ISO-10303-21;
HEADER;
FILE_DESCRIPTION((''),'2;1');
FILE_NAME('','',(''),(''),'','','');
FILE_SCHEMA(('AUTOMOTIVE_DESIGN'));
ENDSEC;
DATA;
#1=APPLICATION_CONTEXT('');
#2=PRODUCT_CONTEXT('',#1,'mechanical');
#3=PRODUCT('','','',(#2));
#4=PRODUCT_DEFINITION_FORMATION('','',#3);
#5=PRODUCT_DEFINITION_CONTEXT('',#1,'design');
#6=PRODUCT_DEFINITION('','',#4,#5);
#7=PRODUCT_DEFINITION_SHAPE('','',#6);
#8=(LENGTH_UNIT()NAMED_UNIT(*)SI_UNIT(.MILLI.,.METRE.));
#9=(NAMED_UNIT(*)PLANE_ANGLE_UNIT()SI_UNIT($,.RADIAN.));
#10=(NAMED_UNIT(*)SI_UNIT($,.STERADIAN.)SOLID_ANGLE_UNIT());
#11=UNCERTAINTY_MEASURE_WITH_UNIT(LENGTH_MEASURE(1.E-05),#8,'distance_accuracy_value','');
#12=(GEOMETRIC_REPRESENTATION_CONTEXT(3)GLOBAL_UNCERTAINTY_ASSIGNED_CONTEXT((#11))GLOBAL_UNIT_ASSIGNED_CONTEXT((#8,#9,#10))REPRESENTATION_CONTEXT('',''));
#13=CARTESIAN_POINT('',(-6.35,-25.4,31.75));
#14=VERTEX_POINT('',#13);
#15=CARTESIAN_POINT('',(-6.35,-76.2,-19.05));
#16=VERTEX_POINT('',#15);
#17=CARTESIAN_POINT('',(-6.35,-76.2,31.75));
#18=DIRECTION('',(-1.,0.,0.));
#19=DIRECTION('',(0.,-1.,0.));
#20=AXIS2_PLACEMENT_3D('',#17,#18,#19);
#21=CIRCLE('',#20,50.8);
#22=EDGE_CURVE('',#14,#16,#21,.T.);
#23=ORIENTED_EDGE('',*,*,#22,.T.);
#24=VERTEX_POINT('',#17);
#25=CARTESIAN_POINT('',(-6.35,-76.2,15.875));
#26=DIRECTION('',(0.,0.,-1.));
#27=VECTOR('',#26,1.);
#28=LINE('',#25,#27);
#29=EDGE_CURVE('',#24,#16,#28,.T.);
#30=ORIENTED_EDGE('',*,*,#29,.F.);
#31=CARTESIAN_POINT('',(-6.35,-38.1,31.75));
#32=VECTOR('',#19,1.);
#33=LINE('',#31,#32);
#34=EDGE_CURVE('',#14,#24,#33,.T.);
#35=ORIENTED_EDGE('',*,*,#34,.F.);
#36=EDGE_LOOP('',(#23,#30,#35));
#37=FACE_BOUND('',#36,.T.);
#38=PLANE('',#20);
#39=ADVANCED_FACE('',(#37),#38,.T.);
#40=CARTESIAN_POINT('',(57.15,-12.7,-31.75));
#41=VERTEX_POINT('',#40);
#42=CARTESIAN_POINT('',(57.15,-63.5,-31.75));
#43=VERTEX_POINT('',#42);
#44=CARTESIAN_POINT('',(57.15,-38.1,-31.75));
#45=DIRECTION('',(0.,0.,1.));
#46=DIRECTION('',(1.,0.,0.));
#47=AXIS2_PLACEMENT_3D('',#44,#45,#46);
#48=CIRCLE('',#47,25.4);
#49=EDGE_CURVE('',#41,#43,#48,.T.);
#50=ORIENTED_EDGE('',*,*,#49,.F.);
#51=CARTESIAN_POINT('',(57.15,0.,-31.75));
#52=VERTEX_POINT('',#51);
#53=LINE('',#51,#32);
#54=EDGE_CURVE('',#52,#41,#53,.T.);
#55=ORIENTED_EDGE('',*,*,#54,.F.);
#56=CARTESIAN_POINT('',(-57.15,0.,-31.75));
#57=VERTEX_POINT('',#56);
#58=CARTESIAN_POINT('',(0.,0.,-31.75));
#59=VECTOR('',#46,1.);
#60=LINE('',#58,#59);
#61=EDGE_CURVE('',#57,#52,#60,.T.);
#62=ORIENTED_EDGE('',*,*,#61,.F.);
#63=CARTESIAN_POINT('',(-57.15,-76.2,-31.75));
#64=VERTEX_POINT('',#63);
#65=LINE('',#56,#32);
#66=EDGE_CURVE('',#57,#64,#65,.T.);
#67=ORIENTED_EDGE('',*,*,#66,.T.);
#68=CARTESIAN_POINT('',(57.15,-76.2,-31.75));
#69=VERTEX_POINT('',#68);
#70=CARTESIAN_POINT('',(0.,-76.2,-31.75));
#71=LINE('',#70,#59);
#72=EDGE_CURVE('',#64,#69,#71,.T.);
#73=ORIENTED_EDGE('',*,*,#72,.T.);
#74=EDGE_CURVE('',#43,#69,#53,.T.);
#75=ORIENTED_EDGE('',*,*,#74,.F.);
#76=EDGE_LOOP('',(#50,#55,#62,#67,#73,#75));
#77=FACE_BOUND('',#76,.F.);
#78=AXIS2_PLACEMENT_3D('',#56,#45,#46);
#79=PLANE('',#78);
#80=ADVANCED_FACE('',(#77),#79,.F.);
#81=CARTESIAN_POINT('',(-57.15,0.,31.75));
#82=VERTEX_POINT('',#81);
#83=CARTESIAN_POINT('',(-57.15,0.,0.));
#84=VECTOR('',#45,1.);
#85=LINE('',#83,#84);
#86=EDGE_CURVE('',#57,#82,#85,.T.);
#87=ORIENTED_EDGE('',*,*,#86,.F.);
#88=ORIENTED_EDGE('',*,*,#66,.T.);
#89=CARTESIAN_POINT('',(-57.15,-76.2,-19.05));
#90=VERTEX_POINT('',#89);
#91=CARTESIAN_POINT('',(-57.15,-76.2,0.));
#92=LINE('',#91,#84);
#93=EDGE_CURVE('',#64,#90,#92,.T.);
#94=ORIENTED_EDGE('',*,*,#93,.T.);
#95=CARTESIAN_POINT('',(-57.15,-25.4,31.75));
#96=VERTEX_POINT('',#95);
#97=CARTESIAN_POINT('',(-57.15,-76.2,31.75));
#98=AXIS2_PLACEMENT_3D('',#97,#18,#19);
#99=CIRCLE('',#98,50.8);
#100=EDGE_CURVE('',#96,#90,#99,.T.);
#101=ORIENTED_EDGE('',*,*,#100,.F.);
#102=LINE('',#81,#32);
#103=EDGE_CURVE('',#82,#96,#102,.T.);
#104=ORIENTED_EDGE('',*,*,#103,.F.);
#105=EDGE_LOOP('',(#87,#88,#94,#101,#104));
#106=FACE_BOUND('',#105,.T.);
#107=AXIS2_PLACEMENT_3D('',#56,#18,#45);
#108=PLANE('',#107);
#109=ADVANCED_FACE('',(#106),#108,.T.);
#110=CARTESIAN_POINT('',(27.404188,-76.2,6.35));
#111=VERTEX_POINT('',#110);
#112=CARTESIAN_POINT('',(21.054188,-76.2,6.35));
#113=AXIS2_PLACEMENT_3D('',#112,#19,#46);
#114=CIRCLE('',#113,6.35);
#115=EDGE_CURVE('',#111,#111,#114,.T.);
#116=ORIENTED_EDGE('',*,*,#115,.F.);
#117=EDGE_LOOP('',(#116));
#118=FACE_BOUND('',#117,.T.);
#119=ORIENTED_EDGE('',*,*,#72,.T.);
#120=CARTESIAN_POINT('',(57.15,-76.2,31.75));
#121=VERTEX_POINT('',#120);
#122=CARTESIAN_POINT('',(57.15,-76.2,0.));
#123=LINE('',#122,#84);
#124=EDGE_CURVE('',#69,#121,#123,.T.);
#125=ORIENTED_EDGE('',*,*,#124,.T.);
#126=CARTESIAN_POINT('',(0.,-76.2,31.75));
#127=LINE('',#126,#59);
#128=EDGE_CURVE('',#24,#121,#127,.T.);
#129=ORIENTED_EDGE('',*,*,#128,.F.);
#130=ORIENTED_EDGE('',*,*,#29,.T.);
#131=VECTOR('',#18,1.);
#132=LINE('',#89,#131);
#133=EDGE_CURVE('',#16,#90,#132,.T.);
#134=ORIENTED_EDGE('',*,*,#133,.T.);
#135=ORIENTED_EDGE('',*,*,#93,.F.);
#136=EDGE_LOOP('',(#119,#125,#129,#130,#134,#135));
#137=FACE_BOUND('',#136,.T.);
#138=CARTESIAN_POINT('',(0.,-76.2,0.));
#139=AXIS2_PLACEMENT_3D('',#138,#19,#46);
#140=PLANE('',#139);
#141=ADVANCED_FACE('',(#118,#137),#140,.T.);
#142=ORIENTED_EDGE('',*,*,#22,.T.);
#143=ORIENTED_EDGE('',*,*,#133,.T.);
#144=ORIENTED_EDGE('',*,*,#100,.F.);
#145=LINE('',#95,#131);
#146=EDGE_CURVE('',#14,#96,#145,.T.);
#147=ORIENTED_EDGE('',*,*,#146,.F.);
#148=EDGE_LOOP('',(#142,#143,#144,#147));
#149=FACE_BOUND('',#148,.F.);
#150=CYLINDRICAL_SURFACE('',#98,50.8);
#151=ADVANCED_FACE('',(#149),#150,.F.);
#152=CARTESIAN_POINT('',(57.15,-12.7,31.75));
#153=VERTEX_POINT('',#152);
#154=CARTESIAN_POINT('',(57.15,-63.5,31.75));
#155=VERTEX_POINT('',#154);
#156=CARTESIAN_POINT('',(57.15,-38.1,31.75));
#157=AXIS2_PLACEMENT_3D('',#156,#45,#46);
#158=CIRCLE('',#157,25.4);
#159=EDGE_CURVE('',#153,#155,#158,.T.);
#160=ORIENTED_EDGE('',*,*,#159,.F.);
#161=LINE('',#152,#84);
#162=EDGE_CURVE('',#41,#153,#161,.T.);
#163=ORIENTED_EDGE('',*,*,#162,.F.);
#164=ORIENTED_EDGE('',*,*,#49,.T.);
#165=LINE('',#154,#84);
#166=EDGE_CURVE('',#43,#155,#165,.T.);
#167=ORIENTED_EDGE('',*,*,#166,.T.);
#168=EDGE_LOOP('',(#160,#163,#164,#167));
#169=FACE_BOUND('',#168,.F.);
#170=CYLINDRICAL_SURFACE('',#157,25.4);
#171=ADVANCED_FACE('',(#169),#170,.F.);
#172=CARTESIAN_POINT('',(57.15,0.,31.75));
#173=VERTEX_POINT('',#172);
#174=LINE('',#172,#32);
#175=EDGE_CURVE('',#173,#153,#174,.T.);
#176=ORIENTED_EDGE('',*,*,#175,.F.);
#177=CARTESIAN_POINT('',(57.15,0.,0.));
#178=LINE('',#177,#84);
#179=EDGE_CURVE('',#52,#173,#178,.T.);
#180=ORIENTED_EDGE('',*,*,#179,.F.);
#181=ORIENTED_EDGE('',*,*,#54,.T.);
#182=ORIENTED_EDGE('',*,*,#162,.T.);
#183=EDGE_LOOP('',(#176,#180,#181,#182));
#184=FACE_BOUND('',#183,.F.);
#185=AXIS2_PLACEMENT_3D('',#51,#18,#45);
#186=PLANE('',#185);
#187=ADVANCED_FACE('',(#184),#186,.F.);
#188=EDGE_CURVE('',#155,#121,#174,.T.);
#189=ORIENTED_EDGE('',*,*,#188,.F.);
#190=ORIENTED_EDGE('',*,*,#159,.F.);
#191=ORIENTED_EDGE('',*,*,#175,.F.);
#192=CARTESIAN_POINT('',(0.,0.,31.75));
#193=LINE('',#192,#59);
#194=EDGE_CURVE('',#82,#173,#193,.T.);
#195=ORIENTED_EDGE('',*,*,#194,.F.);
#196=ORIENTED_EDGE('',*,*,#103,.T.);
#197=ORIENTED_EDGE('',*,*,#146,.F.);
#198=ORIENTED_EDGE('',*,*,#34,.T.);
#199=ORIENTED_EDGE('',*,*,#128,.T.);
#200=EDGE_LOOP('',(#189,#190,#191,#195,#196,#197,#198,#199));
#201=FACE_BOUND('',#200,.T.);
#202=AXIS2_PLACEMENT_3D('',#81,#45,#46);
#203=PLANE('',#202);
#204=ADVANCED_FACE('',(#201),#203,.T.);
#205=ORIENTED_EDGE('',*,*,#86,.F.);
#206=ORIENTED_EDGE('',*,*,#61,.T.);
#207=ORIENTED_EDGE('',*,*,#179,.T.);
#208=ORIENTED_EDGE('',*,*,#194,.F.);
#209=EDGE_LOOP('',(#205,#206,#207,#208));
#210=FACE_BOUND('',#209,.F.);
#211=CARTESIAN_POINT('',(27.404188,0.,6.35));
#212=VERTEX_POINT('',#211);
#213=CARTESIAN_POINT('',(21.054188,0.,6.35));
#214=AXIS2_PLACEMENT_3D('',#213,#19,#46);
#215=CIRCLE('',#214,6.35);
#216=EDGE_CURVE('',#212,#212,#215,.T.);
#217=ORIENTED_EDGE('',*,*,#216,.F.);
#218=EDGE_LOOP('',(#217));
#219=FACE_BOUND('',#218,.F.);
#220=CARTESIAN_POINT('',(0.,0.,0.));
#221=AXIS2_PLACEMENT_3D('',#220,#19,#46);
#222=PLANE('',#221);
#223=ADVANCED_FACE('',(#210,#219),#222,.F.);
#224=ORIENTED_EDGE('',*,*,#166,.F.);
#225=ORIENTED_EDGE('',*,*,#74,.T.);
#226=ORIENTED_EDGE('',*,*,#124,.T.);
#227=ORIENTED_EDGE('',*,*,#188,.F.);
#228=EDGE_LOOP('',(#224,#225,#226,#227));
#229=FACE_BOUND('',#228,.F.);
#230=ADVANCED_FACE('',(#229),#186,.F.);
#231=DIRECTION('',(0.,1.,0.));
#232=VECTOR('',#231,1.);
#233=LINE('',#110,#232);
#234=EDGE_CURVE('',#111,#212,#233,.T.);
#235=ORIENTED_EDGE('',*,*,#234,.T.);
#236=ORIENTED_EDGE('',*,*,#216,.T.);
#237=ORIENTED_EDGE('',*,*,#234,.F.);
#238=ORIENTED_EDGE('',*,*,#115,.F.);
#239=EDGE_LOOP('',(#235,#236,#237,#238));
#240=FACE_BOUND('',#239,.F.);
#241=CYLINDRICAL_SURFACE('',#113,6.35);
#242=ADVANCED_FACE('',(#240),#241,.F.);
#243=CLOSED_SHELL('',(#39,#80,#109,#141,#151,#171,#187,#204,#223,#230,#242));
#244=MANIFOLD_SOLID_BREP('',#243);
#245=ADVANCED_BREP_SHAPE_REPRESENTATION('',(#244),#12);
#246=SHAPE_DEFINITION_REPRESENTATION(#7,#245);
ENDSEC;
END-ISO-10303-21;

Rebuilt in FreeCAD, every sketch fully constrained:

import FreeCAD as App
import Part
import Sketcher
from FreeCAD import Vector
Q = App.Units.Quantity


def add_polygon(sketch, points):
    """Adds a closed chain of lines whose ends are joined by coincident constraints."""
    first, n = sketch.GeometryCount, len(points)
    for a, b in zip(points, points[1:] + points[:1]):
        sketch.addGeometry(Part.LineSegment(App.Vector(*a, 0), App.Vector(*b, 0)), False)
    for i in range(n):
        sketch.addConstraint(Sketcher.Constraint("Coincident", first + i, 2, first + (i + 1) % n, 1))

doc = App.newDocument("Part")
params = doc.addObject("Spreadsheet::Sheet", "Params")
for row, (alias, value) in enumerate([
    ("sketch1_width", "4.5 in"),
    ("sketch1_height", "2.5 in"),
    ("pad1_length", "3 in"),
    ("sketch2_diameter", "4 in"),
    ("pocket1_length", "2 in"),
    ("sketch3_diameter", "0.5 in"),
    ("pocket2_length", "3 in"),
    ("sketch4_diameter", "2 in"),
    ("pocket3_length", "3.44 in"),
], start=1):
    params.set(f"A{row}", alias)
    params.set(f"B{row}", "=" + value)
    params.setAlias(f"B{row}", alias)

body = doc.addObject("PartDesign::Body", "Body")

sketch1 = body.newObject("Sketcher::SketchObject", "Sketch")
sketch1.AttachmentSupport = (doc.getObject("XZ_Plane"), [""])
sketch1.MapMode = "FlatFace"
add_polygon(sketch1, [(-57.15, 31.75), (-57.15, -31.75), (57.15, -31.75), (57.15, 31.75)])
sketch1.addConstraint([
    Sketcher.Constraint("Vertical", 0),
    Sketcher.Constraint("Horizontal", 1),
    Sketcher.Constraint("Vertical", 2),
    Sketcher.Constraint("Horizontal", 3),
    Sketcher.Constraint("Symmetric", 0, 2, 2, 2, -1, 1),
    Sketcher.Constraint("DistanceX", 1, 1, 1, 2, Q("4.5 in")),
    Sketcher.Constraint("DistanceY", 0, 2, 0, 1, Q("2.5 in")),
])
sketch1.setExpression("Constraints[9]", "Params.sketch1_width")
sketch1.setExpression("Constraints[10]", "Params.sketch1_height")
pad1 = body.newObject("PartDesign::Pad", "Pad")
pad1.Profile = sketch1
pad1.setExpression("Length", "Params.pad1_length")

sketch2 = body.newObject("Sketcher::SketchObject", "Sketch001")
sketch2.AttachmentSupport = (doc.getObject("YZ_Plane"), [""])
sketch2.MapMode = "FlatFace"
sketch2.AttachmentOffset = App.Placement(Vector(0, 0, -2.25 * 25.4), App.Rotation())
sketch2.addGeometry(Part.Circle(Vector(-76.2, 31.75, 0), Vector(0, 0, 1), 50.8), False)
sketch2.addConstraint([
    Sketcher.Constraint("Diameter", 0, Q("4 in")),
    Sketcher.Constraint("DistanceX", 0, 3, -1, 1, Q("3 in")),
    Sketcher.Constraint("DistanceY", -1, 1, 0, 3, Q("1.25 in")),
])
sketch2.setExpression("Constraints[0]", "Params.sketch2_diameter")
pocket1 = body.newObject("PartDesign::Pocket", "Pocket")
pocket1.Profile = sketch2
pocket1.setExpression("Length", "Params.pocket1_length")
pocket1.Reversed = True

sketch3 = body.newObject("Sketcher::SketchObject", "Sketch002")
sketch3.AttachmentSupport = (doc.getObject("XZ_Plane"), [""])
sketch3.MapMode = "FlatFace"
sketch3.AttachmentOffset = App.Placement(Vector(0, 0, 3 * 25.4), App.Rotation())
sketch3.addGeometry(Part.Circle(Vector(21.054188, 6.35, 0), Vector(0, 0, 1), 6.35), False)
sketch3.addConstraint([
    Sketcher.Constraint("Diameter", 0, Q("0.5 in")),
    Sketcher.Constraint("DistanceY", -1, 1, 0, 3, Q("0.25 in")),
    Sketcher.Constraint("DistanceX", -1, 1, 0, 3, 21.054188),
])
sketch3.setExpression("Constraints[0]", "Params.sketch3_diameter")
pocket2 = body.newObject("PartDesign::Pocket", "Pocket001")
pocket2.Profile = sketch3
pocket2.setExpression("Length", "Params.pocket2_length")

sketch4 = body.newObject("Sketcher::SketchObject", "Sketch003")
sketch4.AttachmentSupport = (doc.getObject("XY_Plane"), [""])
sketch4.MapMode = "FlatFace"
sketch4.AttachmentOffset = App.Placement(Vector(0, 0, 1.25 * 25.4), App.Rotation())
sketch4.addGeometry(Part.Circle(Vector(57.15, -38.1, 0), Vector(0, 0, 1), 25.4), False)
sketch4.addConstraint([
    Sketcher.Constraint("Diameter", 0, Q("2 in")),
    Sketcher.Constraint("DistanceY", 0, 3, -1, 1, Q("1.5 in")),
    Sketcher.Constraint("DistanceX", -1, 1, 0, 3, Q("2.25 in")),
])
sketch4.setExpression("Constraints[0]", "Params.sketch4_diameter")
pocket3 = body.newObject("PartDesign::Pocket", "Pocket002")
pocket3.Profile = sketch4
pocket3.setExpression("Length", "Params.pocket3_length")

doc.recompute()
